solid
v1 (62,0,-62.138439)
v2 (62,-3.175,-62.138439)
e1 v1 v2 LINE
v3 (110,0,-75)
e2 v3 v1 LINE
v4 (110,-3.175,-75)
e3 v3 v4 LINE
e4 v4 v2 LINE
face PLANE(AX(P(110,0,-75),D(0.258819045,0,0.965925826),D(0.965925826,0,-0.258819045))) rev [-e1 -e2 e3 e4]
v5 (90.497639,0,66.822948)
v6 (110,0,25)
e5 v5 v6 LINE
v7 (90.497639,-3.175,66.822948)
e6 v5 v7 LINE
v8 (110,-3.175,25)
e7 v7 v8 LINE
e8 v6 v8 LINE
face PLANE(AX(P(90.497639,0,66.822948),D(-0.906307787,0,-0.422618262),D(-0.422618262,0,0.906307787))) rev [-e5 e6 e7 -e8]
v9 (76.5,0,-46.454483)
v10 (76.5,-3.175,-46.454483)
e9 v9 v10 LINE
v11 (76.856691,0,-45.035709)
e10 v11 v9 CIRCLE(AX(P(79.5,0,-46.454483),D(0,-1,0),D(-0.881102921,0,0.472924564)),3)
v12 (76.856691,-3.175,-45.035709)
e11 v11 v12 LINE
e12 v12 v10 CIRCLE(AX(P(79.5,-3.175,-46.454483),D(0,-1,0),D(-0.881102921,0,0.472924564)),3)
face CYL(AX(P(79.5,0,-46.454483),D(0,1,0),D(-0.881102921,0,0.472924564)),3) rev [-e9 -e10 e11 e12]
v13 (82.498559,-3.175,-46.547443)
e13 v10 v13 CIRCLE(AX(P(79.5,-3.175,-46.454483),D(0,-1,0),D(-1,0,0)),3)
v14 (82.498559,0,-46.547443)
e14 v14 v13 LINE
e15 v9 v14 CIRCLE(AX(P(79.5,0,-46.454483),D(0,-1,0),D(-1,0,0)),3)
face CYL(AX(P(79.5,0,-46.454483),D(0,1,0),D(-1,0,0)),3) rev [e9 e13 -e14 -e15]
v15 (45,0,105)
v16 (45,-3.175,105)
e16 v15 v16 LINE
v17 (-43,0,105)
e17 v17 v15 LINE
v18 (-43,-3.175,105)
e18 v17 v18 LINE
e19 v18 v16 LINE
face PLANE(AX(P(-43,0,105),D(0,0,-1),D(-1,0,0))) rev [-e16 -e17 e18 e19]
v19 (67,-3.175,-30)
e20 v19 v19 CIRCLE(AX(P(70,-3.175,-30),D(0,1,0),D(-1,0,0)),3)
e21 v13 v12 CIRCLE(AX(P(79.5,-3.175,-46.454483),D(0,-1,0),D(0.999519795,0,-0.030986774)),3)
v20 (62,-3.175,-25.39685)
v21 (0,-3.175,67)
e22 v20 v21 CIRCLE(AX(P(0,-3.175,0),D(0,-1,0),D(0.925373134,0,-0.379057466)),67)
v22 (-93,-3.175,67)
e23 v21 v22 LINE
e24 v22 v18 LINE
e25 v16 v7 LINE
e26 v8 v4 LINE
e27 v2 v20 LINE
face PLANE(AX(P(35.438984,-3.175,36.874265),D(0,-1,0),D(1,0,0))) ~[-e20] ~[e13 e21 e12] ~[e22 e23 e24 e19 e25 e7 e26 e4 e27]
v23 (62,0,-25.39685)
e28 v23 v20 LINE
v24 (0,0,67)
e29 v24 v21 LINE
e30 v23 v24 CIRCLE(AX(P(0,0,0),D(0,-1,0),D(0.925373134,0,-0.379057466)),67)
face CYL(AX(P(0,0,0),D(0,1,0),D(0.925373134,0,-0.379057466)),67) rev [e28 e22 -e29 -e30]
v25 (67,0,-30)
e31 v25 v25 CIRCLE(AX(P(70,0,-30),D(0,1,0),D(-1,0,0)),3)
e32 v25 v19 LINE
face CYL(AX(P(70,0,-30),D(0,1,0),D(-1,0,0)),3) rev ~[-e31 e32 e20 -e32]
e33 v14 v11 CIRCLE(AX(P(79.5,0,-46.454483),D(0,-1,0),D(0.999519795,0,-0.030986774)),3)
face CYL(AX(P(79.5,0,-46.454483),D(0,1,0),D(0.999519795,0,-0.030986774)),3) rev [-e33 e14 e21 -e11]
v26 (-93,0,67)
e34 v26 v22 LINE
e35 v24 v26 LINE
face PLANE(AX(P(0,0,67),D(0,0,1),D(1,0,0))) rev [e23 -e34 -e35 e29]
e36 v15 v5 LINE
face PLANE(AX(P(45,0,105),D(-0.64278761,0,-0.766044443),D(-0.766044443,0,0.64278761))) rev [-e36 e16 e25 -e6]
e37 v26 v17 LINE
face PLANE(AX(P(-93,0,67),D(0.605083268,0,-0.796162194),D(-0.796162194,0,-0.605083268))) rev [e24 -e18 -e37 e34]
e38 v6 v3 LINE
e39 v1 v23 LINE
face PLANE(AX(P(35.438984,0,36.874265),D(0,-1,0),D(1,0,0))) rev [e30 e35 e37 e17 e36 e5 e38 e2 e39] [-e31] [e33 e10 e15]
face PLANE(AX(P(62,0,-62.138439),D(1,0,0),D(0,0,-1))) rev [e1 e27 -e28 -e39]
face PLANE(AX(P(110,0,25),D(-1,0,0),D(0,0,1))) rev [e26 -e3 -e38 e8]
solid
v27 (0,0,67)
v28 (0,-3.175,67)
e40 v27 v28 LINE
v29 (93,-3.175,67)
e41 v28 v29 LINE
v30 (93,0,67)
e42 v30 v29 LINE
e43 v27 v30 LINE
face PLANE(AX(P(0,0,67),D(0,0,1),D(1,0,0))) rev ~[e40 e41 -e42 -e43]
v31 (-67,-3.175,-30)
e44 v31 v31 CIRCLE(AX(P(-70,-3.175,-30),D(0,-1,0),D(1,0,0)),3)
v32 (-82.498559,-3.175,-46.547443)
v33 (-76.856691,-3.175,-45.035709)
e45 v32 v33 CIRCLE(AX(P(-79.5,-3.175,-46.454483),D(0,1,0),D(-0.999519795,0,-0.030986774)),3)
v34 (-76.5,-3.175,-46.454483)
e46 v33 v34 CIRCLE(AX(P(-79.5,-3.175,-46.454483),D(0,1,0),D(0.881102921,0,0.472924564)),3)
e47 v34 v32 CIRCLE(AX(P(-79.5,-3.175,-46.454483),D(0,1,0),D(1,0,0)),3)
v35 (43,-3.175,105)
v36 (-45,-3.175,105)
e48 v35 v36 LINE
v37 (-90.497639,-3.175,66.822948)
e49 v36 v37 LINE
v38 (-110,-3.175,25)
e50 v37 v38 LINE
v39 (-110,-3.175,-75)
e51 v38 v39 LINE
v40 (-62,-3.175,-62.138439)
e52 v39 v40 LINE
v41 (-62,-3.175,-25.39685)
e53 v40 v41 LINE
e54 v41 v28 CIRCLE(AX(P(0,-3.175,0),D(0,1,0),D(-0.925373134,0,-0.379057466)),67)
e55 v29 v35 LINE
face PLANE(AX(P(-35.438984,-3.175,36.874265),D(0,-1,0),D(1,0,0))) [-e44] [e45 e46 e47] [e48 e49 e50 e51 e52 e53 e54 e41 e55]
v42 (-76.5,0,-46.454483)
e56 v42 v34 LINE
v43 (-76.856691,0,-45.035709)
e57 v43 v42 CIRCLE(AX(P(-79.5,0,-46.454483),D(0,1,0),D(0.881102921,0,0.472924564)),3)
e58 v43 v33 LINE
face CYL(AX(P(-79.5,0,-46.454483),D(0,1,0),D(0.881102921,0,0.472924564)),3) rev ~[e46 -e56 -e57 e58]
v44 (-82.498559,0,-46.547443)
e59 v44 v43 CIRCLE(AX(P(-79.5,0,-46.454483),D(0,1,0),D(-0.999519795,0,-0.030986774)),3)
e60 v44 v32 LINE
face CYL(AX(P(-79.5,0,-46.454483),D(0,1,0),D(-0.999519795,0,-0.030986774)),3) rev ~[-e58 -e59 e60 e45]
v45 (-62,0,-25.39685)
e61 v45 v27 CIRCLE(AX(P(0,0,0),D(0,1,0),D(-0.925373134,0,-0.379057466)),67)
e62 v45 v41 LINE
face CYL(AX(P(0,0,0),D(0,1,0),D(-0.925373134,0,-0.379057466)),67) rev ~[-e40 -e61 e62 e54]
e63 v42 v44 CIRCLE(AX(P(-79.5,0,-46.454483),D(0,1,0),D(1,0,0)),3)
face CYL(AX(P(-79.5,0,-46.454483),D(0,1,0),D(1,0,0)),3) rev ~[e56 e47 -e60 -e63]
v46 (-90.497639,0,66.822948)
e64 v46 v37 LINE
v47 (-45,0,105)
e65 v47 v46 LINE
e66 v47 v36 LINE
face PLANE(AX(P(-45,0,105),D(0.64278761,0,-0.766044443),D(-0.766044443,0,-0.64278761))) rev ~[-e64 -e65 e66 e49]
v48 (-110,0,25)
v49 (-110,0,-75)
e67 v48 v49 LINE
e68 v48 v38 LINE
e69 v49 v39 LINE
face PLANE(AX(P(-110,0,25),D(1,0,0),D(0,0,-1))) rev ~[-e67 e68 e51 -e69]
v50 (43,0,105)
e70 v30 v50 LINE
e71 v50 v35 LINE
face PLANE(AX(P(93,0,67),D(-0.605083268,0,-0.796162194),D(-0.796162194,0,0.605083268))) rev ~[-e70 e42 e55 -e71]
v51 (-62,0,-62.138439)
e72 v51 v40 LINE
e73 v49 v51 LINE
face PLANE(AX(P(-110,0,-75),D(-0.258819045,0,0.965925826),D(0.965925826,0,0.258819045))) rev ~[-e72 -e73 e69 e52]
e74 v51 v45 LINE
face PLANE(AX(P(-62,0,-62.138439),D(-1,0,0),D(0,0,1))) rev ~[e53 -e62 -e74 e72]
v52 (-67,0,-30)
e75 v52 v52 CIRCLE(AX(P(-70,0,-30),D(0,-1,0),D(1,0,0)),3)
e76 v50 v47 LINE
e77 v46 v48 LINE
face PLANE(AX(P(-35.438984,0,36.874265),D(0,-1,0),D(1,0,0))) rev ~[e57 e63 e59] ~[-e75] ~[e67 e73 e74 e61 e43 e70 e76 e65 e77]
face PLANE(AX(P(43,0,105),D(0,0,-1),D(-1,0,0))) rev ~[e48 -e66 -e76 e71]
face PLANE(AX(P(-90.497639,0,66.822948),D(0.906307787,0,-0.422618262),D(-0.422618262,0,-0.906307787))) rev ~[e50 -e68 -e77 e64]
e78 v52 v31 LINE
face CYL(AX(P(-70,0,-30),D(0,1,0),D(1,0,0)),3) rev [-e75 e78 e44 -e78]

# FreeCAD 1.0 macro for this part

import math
import FreeCAD as App
import Part
import Sketcher
Q = App.Units.Quantity

doc = App.newDocument("Part")
body = doc.addObject("PartDesign::Body", "Body")

# Sketch on XZ plane
sketch1 = doc.addObject("Sketcher::SketchObject", "Sketch")
body.addObject(sketch1)
sketch1.AttachmentSupport = (doc.XZ_Plane, [""])
sketch1.MapMode = "FlatFace"
sketch1.addGeometry([
    Part.ArcOfCircle(Part.Circle(App.Vector(0, 0, 0), App.Vector(0, 0, 1), 67), math.radians(90), math.radians(202.275312)),  # 0
    Part.LineSegment(App.Vector(0, 67, 0), App.Vector(93, 67, 0)),  # 1
    Part.LineSegment(App.Vector(93, 67, 0), App.Vector(43, 105, 0)),  # 2
    Part.LineSegment(App.Vector(43, 105, 0), App.Vector(-45, 105, 0)),  # 3
    Part.LineSegment(App.Vector(-45, 105, 0), App.Vector(-90.497639, 66.822948, 0)),  # 4
    Part.LineSegment(App.Vector(-90.497639, 66.822948, 0), App.Vector(-110, 25, 0)),  # 5
    Part.LineSegment(App.Vector(-110, 25, 0), App.Vector(-110, -75, 0)),  # 6
    Part.LineSegment(App.Vector(-110, -75, 0), App.Vector(-62, -62.138439, 0)),  # 7
    Part.LineSegment(App.Vector(-62, -62.138439, 0), App.Vector(-62, -25.39685, 0)),  # 8
    Part.ArcOfCircle(Part.Circle(App.Vector(-79.5, -46.454483, 0), App.Vector(0, 0, 1), 3), math.radians(-178.224304), math.radians(0)),  # 9
    Part.ArcOfCircle(Part.Circle(App.Vector(-79.5, -46.454483, 0), App.Vector(0, 0, 1), 3), math.radians(28.224304), math.radians(181.775696)),  # 10
    Part.ArcOfCircle(Part.Circle(App.Vector(-79.5, -46.454483, 0), App.Vector(0, 0, 1), 3), math.radians(0), math.radians(28.224304)),  # 11
    Part.Circle(App.Vector(-70, -30, 0), App.Vector(0, 0, 1), 3),  # 12
], False)
sketch1.addConstraint([
    Sketcher.Constraint("Tangent", 0, 1, 1, 1),
    Sketcher.Constraint("Coincident", 1, 2, 2, 1),
    Sketcher.Constraint("Coincident", 2, 2, 3, 1),
    Sketcher.Constraint("Coincident", 3, 2, 4, 1),
    Sketcher.Constraint("Coincident", 4, 2, 5, 1),
    Sketcher.Constraint("Coincident", 5, 2, 6, 1),
    Sketcher.Constraint("Coincident", 6, 2, 7, 1),
    Sketcher.Constraint("Coincident", 7, 2, 8, 1),
    Sketcher.Constraint("Coincident", 8, 2, 0, 2),
    Sketcher.Constraint("Tangent", 9, 1, 10, 2),
    Sketcher.Constraint("Tangent", 10, 1, 11, 2),
    Sketcher.Constraint("Tangent", 11, 1, 9, 2),
    Sketcher.Constraint("Horizontal", 1),
    Sketcher.Constraint("Horizontal", 3),
    Sketcher.Constraint("Vertical", 6),
    Sketcher.Constraint("Vertical", 8),
    Sketcher.Constraint("Coincident", 0, 3, -1, 1),
    Sketcher.Constraint("Equal", 11, 12),
    Sketcher.Constraint("Horizontal", 10, 3, 11, 1),
    Sketcher.Constraint("Diameter", 12, 6.0),
    Sketcher.Constraint("Radius", 0, 67.0),
    Sketcher.Constraint("DistanceX", 1, 1, 1, 2, 93.0),
    Sketcher.Constraint("DistanceX", 3, 2, 3, 1, 88.0),
    Sketcher.Constraint("DistanceY", 6, 2, 6, 1, 100.0),
    Sketcher.Constraint("Angle", 4, Q("-140 deg")),
    Sketcher.Constraint("Angle", 5, Q("-115 deg")),
    Sketcher.Constraint("Angle", 7, Q("15 deg")),
    Sketcher.Constraint("DistanceX", 12, 3, -1, 1, 70.0),
    Sketcher.Constraint("DistanceY", 12, 3, -1, 1, 30.0),
    Sketcher.Constraint("DistanceX", -1, 1, 2, 2, 43.0),
    Sketcher.Constraint("DistanceY", -1, 1, 2, 2, 105.0),
    Sketcher.Constraint("DistanceX", 5, 2, -1, 1, 110.0),
    Sketcher.Constraint("DistanceY", -1, 1, 5, 2, 25.0),
    Sketcher.Constraint("DistanceX", 7, 2, -1, 1, 62.0),
    Sketcher.Constraint("DistanceX", 9, 3, -1, 1, 79.5),
    Sketcher.Constraint("DistanceX", 9, 1, -1, 1, 82.498559),
    Sketcher.Constraint("DistanceX", 10, 1, -1, 1, 76.856691),
    Sketcher.Constraint("DistanceY", 10, 1, -1, 1, 45.035709),
])
pad1 = doc.addObject("PartDesign::Pad", "Pad")
body.addObject(pad1)
pad1.Profile = sketch1
pad1.Length = 3.175
body2 = doc.addObject("PartDesign::Body", "Body001")
doc.recompute()

mirroring = doc.addObject("Part::Mirroring", "Mirroring")
mirroring.Source = body
mirroring.Base = App.Vector(0, 0, 0)
mirroring.Normal = App.Vector(1, 0, 0)
body2.BaseFeature = mirroring
doc.recompute()
mirroring.Visibility = False

doc.recompute()
